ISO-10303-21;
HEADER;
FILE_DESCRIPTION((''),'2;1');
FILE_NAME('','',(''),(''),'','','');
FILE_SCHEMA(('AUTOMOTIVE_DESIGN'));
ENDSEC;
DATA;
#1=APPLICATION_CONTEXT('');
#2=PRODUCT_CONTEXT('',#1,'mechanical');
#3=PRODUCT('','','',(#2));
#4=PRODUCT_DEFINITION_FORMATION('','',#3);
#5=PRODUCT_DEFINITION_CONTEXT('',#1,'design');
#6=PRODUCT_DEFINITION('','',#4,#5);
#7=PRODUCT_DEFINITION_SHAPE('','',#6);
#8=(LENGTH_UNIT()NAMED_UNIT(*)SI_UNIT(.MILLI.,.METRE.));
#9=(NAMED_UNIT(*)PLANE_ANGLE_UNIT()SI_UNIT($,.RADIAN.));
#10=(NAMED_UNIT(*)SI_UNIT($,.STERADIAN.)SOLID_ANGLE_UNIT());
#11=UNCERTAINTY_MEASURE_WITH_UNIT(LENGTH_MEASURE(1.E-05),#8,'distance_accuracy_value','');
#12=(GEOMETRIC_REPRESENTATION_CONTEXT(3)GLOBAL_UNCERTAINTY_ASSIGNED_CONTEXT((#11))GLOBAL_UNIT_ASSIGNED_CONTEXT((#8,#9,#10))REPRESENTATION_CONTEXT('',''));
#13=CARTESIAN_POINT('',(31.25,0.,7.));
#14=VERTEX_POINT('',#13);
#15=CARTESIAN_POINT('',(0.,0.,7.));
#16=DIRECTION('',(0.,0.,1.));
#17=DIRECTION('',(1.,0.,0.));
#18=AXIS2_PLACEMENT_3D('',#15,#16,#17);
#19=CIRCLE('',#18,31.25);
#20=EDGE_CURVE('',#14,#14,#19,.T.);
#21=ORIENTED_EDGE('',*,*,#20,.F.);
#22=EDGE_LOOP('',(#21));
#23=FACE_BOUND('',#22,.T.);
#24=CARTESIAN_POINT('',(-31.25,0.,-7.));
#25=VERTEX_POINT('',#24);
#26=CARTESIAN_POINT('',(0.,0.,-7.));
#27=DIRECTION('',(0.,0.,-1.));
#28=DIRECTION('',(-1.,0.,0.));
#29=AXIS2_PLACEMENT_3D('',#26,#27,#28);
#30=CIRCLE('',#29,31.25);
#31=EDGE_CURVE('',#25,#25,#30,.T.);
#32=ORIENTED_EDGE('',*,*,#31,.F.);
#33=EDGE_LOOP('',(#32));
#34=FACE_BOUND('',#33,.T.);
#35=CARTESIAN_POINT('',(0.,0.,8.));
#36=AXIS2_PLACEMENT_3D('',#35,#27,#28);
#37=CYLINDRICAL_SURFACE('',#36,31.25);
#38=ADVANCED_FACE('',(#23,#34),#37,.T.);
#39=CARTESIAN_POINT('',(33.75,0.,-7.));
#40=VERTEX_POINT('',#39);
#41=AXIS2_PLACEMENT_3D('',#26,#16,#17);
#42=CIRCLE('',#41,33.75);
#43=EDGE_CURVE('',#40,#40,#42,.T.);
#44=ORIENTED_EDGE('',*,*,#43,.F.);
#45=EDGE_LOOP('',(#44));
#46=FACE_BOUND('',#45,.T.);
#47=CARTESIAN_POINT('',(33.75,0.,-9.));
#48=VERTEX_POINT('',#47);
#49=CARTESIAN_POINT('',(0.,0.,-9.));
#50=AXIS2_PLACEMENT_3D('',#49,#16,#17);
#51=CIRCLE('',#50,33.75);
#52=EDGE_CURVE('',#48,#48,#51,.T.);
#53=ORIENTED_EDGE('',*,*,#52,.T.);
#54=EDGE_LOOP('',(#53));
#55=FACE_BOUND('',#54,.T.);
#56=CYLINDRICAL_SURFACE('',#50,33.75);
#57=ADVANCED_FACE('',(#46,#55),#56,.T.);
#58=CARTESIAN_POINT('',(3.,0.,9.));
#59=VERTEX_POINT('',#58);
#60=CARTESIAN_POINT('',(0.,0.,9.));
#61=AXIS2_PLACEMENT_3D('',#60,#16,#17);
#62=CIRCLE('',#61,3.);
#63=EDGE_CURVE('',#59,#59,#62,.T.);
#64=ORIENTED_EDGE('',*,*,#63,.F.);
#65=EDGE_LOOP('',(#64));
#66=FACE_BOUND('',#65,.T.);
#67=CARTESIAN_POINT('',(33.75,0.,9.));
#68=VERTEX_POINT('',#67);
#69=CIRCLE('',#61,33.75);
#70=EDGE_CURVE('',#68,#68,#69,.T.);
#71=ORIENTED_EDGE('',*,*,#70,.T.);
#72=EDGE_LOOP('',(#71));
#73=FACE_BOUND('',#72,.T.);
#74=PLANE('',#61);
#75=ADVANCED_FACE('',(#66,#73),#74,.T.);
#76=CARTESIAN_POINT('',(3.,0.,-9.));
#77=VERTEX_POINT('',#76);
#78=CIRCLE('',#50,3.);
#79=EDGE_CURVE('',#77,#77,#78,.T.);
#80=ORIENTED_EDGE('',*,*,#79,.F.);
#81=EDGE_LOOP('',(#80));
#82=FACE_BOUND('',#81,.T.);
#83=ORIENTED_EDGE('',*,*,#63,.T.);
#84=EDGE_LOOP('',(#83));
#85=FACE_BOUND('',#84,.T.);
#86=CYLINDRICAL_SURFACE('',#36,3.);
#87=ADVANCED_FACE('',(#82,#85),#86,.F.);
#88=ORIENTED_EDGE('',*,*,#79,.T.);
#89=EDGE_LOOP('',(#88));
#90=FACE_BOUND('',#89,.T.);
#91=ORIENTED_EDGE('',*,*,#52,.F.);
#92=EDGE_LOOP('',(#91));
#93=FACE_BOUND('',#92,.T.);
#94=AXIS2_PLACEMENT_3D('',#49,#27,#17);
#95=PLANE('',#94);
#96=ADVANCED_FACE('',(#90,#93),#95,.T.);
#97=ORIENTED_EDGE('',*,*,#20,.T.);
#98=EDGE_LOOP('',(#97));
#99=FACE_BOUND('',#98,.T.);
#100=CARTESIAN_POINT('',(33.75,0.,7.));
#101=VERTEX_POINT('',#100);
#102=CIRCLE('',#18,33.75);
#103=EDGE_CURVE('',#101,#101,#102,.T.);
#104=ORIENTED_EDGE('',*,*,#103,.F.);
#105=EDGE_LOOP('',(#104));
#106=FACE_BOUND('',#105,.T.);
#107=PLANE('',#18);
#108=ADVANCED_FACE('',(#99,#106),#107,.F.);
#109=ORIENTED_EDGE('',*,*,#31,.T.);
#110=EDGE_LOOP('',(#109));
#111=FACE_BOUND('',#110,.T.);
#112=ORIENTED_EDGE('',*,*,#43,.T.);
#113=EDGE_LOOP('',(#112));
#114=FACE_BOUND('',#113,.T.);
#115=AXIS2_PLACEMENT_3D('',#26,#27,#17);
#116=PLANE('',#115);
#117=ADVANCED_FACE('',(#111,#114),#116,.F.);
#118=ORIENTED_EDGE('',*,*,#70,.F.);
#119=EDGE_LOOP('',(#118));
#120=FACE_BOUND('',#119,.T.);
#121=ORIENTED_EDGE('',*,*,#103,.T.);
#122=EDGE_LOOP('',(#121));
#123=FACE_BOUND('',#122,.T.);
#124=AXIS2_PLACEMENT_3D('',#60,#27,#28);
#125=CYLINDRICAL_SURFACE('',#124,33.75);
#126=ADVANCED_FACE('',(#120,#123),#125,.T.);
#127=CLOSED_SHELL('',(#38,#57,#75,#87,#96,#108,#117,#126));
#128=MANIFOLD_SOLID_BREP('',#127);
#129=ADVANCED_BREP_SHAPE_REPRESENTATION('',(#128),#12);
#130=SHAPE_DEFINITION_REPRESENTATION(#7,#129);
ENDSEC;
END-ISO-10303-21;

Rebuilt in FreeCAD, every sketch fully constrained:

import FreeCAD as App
import Part
import Sketcher
Q = App.Units.Quantity

doc = App.newDocument("Part")
body = doc.addObject("PartDesign::Body", "Body")

# Sketch on XY plane
sketch1 = body.newObject("Sketcher::SketchObject", "Sketch")
sketch1.AttachmentSupport = (doc.getObject("XY_Plane"), [""])
sketch1.MapMode = "FlatFace"
sketch1.addGeometry([
    Part.Circle(App.Vector(0, 0, 0), App.Vector(0, 0, 1), 31.2),
    Part.Circle(App.Vector(0, 0, 0), App.Vector(0, 0, 1), 3),
], False)
sketch1.addConstraint([
    Sketcher.Constraint("Coincident", 0, 3, -1, 1),
    Sketcher.Constraint("Coincident", 1, 3, -1, 1),
    Sketcher.Constraint("Diameter", 1, Q("6 mm")),
    Sketcher.Constraint("Diameter", 0, Q("62.5 mm")),
])
pad1 = body.newObject("PartDesign::Pad", "Pad")
pad1.Profile = sketch1
pad1.Length = 16
pad1.Midplane = True

# Sketch on XY plane
sketch2 = body.newObject("Sketcher::SketchObject", "Sketch001")
sketch2.AttachmentSupport = (doc.getObject("XY_Plane"), [""])
sketch2.MapMode = "FlatFace"
sketch2.AttachmentOffset = App.Placement(App.Vector(0, 0, 8), App.Rotation())
sketch2.addGeometry([
    Part.Circle(App.Vector(0, 0, 0), App.Vector(0, 0, 1), 33.8),
    Part.Circle(App.Vector(0, 0, 0), App.Vector(0, 0, 1), 3),
], False)
sketch2.addConstraint([
    Sketcher.Constraint("Coincident", 0, 3, -1, 1),
    Sketcher.Constraint("Coincident", 1, 3, -1, 1),
    Sketcher.Constraint("Diameter", 1, Q("6 mm")),
    Sketcher.Constraint("Diameter", 0, Q("67.5 mm")),
])
pad2 = body.newObject("PartDesign::Pad", "Pad001")
pad2.Profile = sketch2
pad2.Length = 2
pad2.Midplane = True
doc.recompute()

mirrored = body.newObject("PartDesign::Mirrored", "Mirrored")
mirrored.Originals = [pad2]
mirrored.MirrorPlane = (doc.getObject("XY_Plane"), [""])
body.Tip = mirrored

doc.recompute()
